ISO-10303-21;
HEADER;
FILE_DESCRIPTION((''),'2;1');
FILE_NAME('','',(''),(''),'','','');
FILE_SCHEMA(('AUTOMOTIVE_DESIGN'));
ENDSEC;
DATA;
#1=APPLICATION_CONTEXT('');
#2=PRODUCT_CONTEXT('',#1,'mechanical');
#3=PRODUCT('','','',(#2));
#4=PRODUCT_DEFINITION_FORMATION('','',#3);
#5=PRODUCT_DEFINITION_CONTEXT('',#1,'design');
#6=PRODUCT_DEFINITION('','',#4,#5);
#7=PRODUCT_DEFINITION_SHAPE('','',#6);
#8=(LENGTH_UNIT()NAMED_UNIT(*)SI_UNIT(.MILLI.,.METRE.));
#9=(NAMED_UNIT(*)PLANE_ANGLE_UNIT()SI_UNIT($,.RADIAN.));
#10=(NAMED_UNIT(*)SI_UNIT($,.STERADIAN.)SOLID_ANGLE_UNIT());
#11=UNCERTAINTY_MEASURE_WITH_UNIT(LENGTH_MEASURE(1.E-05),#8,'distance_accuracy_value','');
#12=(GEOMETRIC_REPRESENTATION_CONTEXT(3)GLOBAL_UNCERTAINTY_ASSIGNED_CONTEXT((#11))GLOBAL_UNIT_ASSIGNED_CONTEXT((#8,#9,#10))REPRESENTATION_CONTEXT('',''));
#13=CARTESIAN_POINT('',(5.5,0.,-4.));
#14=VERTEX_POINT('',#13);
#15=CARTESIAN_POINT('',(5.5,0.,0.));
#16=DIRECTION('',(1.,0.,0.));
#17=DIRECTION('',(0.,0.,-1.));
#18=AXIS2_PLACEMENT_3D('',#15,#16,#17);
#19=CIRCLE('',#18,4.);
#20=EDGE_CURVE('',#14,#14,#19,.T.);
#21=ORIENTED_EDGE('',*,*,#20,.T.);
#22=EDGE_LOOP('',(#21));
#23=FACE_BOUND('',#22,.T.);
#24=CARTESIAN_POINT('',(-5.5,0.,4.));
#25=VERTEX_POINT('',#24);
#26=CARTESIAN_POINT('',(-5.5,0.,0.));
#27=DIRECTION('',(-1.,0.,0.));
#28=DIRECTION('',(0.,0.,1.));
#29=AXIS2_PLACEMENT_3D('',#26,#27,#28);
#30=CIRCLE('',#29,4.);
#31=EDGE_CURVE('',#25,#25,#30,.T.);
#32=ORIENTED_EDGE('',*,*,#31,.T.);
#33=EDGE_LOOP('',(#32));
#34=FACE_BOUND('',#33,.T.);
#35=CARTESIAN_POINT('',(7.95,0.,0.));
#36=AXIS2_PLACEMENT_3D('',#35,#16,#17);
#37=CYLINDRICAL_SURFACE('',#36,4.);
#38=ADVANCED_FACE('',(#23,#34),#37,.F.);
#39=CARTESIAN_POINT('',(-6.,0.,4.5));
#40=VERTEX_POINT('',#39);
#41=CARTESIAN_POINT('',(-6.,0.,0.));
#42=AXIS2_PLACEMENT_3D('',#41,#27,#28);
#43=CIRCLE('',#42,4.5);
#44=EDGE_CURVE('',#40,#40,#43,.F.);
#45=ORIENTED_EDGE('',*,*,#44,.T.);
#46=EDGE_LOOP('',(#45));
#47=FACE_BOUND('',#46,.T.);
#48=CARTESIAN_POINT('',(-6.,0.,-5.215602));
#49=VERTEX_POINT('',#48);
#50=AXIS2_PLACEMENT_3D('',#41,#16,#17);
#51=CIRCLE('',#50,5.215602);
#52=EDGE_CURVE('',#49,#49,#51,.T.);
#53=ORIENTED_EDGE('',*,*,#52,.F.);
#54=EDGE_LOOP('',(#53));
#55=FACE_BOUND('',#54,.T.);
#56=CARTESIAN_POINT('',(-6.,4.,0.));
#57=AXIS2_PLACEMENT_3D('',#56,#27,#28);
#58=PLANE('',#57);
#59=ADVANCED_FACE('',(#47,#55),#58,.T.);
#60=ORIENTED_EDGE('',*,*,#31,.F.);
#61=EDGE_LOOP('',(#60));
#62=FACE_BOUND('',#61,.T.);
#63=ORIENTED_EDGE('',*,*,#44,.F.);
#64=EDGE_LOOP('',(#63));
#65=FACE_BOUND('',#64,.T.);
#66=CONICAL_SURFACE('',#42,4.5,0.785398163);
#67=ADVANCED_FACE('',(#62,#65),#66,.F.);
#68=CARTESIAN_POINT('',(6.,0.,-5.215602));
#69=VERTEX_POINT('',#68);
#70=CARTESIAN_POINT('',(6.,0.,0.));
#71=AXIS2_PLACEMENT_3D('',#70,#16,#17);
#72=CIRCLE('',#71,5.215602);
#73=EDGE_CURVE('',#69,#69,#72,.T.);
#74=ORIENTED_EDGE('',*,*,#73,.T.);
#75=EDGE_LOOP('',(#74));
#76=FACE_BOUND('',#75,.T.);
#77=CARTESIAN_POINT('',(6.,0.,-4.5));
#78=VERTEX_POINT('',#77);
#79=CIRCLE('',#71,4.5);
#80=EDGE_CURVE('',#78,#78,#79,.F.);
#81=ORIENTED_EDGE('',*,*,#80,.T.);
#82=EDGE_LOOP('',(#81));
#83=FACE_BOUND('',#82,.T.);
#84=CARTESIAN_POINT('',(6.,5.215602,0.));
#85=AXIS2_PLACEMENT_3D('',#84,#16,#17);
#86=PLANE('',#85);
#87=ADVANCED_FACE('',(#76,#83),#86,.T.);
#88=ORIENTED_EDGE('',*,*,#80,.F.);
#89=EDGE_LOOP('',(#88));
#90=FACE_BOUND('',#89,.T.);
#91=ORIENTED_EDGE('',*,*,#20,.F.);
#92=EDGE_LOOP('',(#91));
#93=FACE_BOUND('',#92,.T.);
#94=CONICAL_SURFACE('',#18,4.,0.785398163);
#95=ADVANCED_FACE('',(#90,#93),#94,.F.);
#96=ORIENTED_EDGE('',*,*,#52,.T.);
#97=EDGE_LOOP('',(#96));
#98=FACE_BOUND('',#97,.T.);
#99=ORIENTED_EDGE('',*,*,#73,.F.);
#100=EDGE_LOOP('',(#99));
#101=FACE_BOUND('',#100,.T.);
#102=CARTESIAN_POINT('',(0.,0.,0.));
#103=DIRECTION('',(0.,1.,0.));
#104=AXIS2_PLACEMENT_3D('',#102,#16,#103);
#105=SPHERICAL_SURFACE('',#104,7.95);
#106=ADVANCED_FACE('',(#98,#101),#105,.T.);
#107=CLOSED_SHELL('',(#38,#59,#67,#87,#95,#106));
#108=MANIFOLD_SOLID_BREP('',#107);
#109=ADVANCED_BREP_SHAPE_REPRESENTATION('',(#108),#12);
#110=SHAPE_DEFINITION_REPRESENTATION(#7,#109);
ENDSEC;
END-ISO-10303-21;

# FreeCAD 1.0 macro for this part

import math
import FreeCAD as App
import Part
import Sketcher
Q = App.Units.Quantity


def edges_at(feature, points):
    """Names of the edges that pass closest to the given points."""
    edges = feature.Shape.Edges
    near = lambda p: min(range(len(edges)), key=lambda i: edges[i].distToShape(Part.Vertex(*p))[0])
    return sorted({f"Edge{near(p) + 1}" for p in points})

doc = App.newDocument("Part")
body = doc.addObject("PartDesign::Body", "Body")

# Sketch on XY plane
sketch1 = body.newObject("Sketcher::SketchObject", "Sketch")
sketch1.AttachmentSupport = (doc.getObject("XY_Plane"), [""])
sketch1.MapMode = "FlatFace"
sketch1.addGeometry([
    Part.LineSegment(App.Vector(6, 4, 0), App.Vector(6, 5.2, 0)),
    Part.ArcOfCircle(Part.Circle(App.Vector(0, 0, 0), App.Vector(0, 0, 1), 8), math.radians(41), math.radians(139)),
    Part.LineSegment(App.Vector(-6, 5.2, 0), App.Vector(-6, 4, 0)),
    Part.LineSegment(App.Vector(-6, 4, 0), App.Vector(6, 4, 0)),
], False)
sketch1.addConstraint([
    Sketcher.Constraint("Coincident", 0, 2, 1, 1),
    Sketcher.Constraint("Coincident", 1, 2, 2, 1),
    Sketcher.Constraint("Coincident", 2, 2, 3, 1),
    Sketcher.Constraint("Coincident", 3, 2, 0, 1),
    Sketcher.Constraint("Vertical", 0),
    Sketcher.Constraint("Vertical", 2),
    Sketcher.Constraint("Horizontal", 3),
    Sketcher.Constraint("Coincident", 1, 3, -1, 1),
    Sketcher.Constraint("Horizontal", 0, 2, 1, 2),
    Sketcher.Constraint("DistanceX", 3, 1, 3, 2, Q("12 mm")),
    Sketcher.Constraint("Radius", 1, Q("7.95 mm")),
    Sketcher.Constraint("DistanceY", -1, 1, 2, 2, Q("4 mm")),
])
revolution = body.newObject("PartDesign::Revolution", "Revolution")
revolution.Profile = sketch1
revolution.ReferenceAxis = (sketch1, ["H_Axis"])
revolution.Angle = 360
doc.recompute()

chamfer = body.newObject("PartDesign::Chamfer", "Chamfer")
chamfer.Base = (revolution, edges_at(revolution, [(6, -4, 0), (-6, -4, 0)]))
chamfer.Size = 0.5

doc.recompute()
